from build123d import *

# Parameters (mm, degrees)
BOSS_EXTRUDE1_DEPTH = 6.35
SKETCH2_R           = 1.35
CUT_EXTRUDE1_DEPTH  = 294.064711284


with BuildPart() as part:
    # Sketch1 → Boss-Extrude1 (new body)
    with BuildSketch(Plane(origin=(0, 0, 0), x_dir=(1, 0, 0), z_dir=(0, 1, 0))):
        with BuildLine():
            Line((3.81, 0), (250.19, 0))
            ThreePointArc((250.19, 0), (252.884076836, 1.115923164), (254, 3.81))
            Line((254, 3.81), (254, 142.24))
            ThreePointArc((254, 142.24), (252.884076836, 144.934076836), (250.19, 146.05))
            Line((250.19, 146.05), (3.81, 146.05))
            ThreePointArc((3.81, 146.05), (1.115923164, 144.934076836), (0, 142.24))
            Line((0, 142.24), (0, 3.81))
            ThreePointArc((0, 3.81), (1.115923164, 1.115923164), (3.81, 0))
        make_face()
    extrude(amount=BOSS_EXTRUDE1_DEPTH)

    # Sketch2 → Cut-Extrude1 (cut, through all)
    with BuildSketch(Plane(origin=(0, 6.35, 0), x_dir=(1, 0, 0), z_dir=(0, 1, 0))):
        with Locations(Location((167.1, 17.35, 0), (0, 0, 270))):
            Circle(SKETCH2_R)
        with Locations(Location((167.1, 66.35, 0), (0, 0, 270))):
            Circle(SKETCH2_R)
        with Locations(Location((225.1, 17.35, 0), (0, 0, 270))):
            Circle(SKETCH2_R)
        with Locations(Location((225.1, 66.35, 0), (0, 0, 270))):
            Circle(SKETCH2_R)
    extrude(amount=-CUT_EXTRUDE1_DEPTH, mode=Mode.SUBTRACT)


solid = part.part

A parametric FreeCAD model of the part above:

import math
import FreeCAD as App
import Part
import Sketcher
from FreeCAD import Vector
Q = App.Units.Quantity

doc = App.newDocument("Part")
body = doc.addObject("PartDesign::Body", "Body")

sketch1 = body.newObject("Sketcher::SketchObject", "Sketch")
sketch1.AttachmentSupport = (doc.getObject("XZ_Plane"), [""])
sketch1.MapMode = "FlatFace"
sketch1.addGeometry(Part.LineSegment(Vector(3.8, 0, 0), Vector(250.2, 0, 0)), False)
sketch1.addGeometry(Part.ArcOfCircle(Part.Circle(Vector(250.2, -3.8, 0), Vector(0, 0, 1), 3.8), math.radians(0), math.radians(90)), False)
sketch1.addGeometry(Part.LineSegment(Vector(254, -3.8, 0), Vector(254, -142.2, 0)), False)
sketch1.addGeometry(Part.ArcOfCircle(Part.Circle(Vector(250.2, -142.2, 0), Vector(0, 0, 1), 3.8), math.radians(-90), math.radians(0)), False)
sketch1.addGeometry(Part.LineSegment(Vector(250.2, -146.1, 0), Vector(3.8, -146.1, 0)), False)
sketch1.addGeometry(Part.ArcOfCircle(Part.Circle(Vector(3.8, -142.2, 0), Vector(0, 0, 1), 3.8), math.radians(-180), math.radians(-90)), False)
sketch1.addGeometry(Part.LineSegment(Vector(0, -142.2, 0), Vector(0, -3.8, 0)), False)
sketch1.addGeometry(Part.ArcOfCircle(Part.Circle(Vector(3.8, -3.8, 0), Vector(0, 0, 1), 3.8), math.radians(90), math.radians(180)), False)
sketch1.addConstraint(Sketcher.Constraint("Tangent", 0, 2, 1, 2))
sketch1.addConstraint(Sketcher.Constraint("Tangent", 1, 1, 2, 1))
sketch1.addConstraint(Sketcher.Constraint("Tangent", 2, 2, 3, 2))
sketch1.addConstraint(Sketcher.Constraint("Tangent", 3, 1, 4, 1))
sketch1.addConstraint(Sketcher.Constraint("Tangent", 4, 2, 5, 2))
sketch1.addConstraint(Sketcher.Constraint("Tangent", 5, 1, 6, 1))
sketch1.addConstraint(Sketcher.Constraint("Tangent", 6, 2, 7, 2))
sketch1.addConstraint(Sketcher.Constraint("Tangent", 7, 1, 0, 1))
sketch1.addConstraint(Sketcher.Constraint("Horizontal", 0))
sketch1.addConstraint(Sketcher.Constraint("Vertical", 2))
sketch1.addConstraint(Sketcher.Constraint("Horizontal", 4))
sketch1.addConstraint(Sketcher.Constraint("Vertical", 6))
sketch1.addConstraint(Sketcher.Constraint("Equal", 1, 3))
sketch1.addConstraint(Sketcher.Constraint("Equal", 3, 5))
sketch1.addConstraint(Sketcher.Constraint("Equal", 5, 7))
sketch1.addConstraint(Sketcher.Constraint("PointOnObject", 0, 2, -1))
sketch1.addConstraint(Sketcher.Constraint("PointOnObject", 5, 1, -2))
sketch1.addConstraint(Sketcher.Constraint("Radius", 1, Q("0.15 in")))
sketch1.addConstraint(Sketcher.Constraint("DistanceX", 0, 1, 0, 2, Q("9.7 in")))
sketch1.addConstraint(Sketcher.Constraint("DistanceY", 2, 2, 2, 1, Q("5.45 in")))
pad1 = body.newObject("PartDesign::Pad", "Pad")
pad1.Profile = sketch1
pad1.Length = Q("0.25 in")
pad1.Reversed = True

sketch2 = body.newObject("Sketcher::SketchObject", "Sketch001")
sketch2.AttachmentSupport = (doc.getObject("XZ_Plane"), [""])
sketch2.MapMode = "FlatFace"
sketch2.AttachmentOffset = App.Placement(Vector(0, 0, -0.25 * 25.4), App.Rotation())
sketch2.addGeometry(Part.Circle(Vector(167.1, -17.4, 0), Vector(0, 0, 1), 1.4), False)
sketch2.addGeometry(Part.Circle(Vector(167.1, -66.3, 0), Vector(0, 0, 1), 1.4), False)
sketch2.addGeometry(Part.Circle(Vector(225.1, -17.4, 0), Vector(0, 0, 1), 1.4), False)
sketch2.addGeometry(Part.Circle(Vector(225.1, -66.3, 0), Vector(0, 0, 1), 1.4), False)
sketch2.addConstraint(Sketcher.Constraint("Equal", 0, 1))
sketch2.addConstraint(Sketcher.Constraint("Equal", 1, 2))
sketch2.addConstraint(Sketcher.Constraint("Equal", 2, 3))
sketch2.addConstraint(Sketcher.Constraint("Horizontal", 0, 3, 2, 3))
sketch2.addConstraint(Sketcher.Constraint("Horizontal", 1, 3, 3, 3))
sketch2.addConstraint(Sketcher.Constraint("Vertical", 0, 3, 1, 3))
sketch2.addConstraint(Sketcher.Constraint("Vertical", 2, 3, 3, 3))
sketch2.addConstraint(Sketcher.Constraint("Diameter", 0, 2.7))
sketch2.addConstraint(Sketcher.Constraint("DistanceX", -1, 1, 0, 3, 167.1))
sketch2.addConstraint(Sketcher.Constraint("DistanceY", 0, 3, -1, 1, 17.35))
sketch2.addConstraint(Sketcher.Constraint("DistanceY", 1, 3, -1, 1, 66.35))
sketch2.addConstraint(Sketcher.Constraint("DistanceX", -1, 1, 2, 3, 225.1))
pocket1 = body.newObject("PartDesign::Pocket", "Pocket")
pocket1.Profile = sketch2
pocket1.Type = "ThroughAll"
pocket1.Reversed = True

doc.recompute()
